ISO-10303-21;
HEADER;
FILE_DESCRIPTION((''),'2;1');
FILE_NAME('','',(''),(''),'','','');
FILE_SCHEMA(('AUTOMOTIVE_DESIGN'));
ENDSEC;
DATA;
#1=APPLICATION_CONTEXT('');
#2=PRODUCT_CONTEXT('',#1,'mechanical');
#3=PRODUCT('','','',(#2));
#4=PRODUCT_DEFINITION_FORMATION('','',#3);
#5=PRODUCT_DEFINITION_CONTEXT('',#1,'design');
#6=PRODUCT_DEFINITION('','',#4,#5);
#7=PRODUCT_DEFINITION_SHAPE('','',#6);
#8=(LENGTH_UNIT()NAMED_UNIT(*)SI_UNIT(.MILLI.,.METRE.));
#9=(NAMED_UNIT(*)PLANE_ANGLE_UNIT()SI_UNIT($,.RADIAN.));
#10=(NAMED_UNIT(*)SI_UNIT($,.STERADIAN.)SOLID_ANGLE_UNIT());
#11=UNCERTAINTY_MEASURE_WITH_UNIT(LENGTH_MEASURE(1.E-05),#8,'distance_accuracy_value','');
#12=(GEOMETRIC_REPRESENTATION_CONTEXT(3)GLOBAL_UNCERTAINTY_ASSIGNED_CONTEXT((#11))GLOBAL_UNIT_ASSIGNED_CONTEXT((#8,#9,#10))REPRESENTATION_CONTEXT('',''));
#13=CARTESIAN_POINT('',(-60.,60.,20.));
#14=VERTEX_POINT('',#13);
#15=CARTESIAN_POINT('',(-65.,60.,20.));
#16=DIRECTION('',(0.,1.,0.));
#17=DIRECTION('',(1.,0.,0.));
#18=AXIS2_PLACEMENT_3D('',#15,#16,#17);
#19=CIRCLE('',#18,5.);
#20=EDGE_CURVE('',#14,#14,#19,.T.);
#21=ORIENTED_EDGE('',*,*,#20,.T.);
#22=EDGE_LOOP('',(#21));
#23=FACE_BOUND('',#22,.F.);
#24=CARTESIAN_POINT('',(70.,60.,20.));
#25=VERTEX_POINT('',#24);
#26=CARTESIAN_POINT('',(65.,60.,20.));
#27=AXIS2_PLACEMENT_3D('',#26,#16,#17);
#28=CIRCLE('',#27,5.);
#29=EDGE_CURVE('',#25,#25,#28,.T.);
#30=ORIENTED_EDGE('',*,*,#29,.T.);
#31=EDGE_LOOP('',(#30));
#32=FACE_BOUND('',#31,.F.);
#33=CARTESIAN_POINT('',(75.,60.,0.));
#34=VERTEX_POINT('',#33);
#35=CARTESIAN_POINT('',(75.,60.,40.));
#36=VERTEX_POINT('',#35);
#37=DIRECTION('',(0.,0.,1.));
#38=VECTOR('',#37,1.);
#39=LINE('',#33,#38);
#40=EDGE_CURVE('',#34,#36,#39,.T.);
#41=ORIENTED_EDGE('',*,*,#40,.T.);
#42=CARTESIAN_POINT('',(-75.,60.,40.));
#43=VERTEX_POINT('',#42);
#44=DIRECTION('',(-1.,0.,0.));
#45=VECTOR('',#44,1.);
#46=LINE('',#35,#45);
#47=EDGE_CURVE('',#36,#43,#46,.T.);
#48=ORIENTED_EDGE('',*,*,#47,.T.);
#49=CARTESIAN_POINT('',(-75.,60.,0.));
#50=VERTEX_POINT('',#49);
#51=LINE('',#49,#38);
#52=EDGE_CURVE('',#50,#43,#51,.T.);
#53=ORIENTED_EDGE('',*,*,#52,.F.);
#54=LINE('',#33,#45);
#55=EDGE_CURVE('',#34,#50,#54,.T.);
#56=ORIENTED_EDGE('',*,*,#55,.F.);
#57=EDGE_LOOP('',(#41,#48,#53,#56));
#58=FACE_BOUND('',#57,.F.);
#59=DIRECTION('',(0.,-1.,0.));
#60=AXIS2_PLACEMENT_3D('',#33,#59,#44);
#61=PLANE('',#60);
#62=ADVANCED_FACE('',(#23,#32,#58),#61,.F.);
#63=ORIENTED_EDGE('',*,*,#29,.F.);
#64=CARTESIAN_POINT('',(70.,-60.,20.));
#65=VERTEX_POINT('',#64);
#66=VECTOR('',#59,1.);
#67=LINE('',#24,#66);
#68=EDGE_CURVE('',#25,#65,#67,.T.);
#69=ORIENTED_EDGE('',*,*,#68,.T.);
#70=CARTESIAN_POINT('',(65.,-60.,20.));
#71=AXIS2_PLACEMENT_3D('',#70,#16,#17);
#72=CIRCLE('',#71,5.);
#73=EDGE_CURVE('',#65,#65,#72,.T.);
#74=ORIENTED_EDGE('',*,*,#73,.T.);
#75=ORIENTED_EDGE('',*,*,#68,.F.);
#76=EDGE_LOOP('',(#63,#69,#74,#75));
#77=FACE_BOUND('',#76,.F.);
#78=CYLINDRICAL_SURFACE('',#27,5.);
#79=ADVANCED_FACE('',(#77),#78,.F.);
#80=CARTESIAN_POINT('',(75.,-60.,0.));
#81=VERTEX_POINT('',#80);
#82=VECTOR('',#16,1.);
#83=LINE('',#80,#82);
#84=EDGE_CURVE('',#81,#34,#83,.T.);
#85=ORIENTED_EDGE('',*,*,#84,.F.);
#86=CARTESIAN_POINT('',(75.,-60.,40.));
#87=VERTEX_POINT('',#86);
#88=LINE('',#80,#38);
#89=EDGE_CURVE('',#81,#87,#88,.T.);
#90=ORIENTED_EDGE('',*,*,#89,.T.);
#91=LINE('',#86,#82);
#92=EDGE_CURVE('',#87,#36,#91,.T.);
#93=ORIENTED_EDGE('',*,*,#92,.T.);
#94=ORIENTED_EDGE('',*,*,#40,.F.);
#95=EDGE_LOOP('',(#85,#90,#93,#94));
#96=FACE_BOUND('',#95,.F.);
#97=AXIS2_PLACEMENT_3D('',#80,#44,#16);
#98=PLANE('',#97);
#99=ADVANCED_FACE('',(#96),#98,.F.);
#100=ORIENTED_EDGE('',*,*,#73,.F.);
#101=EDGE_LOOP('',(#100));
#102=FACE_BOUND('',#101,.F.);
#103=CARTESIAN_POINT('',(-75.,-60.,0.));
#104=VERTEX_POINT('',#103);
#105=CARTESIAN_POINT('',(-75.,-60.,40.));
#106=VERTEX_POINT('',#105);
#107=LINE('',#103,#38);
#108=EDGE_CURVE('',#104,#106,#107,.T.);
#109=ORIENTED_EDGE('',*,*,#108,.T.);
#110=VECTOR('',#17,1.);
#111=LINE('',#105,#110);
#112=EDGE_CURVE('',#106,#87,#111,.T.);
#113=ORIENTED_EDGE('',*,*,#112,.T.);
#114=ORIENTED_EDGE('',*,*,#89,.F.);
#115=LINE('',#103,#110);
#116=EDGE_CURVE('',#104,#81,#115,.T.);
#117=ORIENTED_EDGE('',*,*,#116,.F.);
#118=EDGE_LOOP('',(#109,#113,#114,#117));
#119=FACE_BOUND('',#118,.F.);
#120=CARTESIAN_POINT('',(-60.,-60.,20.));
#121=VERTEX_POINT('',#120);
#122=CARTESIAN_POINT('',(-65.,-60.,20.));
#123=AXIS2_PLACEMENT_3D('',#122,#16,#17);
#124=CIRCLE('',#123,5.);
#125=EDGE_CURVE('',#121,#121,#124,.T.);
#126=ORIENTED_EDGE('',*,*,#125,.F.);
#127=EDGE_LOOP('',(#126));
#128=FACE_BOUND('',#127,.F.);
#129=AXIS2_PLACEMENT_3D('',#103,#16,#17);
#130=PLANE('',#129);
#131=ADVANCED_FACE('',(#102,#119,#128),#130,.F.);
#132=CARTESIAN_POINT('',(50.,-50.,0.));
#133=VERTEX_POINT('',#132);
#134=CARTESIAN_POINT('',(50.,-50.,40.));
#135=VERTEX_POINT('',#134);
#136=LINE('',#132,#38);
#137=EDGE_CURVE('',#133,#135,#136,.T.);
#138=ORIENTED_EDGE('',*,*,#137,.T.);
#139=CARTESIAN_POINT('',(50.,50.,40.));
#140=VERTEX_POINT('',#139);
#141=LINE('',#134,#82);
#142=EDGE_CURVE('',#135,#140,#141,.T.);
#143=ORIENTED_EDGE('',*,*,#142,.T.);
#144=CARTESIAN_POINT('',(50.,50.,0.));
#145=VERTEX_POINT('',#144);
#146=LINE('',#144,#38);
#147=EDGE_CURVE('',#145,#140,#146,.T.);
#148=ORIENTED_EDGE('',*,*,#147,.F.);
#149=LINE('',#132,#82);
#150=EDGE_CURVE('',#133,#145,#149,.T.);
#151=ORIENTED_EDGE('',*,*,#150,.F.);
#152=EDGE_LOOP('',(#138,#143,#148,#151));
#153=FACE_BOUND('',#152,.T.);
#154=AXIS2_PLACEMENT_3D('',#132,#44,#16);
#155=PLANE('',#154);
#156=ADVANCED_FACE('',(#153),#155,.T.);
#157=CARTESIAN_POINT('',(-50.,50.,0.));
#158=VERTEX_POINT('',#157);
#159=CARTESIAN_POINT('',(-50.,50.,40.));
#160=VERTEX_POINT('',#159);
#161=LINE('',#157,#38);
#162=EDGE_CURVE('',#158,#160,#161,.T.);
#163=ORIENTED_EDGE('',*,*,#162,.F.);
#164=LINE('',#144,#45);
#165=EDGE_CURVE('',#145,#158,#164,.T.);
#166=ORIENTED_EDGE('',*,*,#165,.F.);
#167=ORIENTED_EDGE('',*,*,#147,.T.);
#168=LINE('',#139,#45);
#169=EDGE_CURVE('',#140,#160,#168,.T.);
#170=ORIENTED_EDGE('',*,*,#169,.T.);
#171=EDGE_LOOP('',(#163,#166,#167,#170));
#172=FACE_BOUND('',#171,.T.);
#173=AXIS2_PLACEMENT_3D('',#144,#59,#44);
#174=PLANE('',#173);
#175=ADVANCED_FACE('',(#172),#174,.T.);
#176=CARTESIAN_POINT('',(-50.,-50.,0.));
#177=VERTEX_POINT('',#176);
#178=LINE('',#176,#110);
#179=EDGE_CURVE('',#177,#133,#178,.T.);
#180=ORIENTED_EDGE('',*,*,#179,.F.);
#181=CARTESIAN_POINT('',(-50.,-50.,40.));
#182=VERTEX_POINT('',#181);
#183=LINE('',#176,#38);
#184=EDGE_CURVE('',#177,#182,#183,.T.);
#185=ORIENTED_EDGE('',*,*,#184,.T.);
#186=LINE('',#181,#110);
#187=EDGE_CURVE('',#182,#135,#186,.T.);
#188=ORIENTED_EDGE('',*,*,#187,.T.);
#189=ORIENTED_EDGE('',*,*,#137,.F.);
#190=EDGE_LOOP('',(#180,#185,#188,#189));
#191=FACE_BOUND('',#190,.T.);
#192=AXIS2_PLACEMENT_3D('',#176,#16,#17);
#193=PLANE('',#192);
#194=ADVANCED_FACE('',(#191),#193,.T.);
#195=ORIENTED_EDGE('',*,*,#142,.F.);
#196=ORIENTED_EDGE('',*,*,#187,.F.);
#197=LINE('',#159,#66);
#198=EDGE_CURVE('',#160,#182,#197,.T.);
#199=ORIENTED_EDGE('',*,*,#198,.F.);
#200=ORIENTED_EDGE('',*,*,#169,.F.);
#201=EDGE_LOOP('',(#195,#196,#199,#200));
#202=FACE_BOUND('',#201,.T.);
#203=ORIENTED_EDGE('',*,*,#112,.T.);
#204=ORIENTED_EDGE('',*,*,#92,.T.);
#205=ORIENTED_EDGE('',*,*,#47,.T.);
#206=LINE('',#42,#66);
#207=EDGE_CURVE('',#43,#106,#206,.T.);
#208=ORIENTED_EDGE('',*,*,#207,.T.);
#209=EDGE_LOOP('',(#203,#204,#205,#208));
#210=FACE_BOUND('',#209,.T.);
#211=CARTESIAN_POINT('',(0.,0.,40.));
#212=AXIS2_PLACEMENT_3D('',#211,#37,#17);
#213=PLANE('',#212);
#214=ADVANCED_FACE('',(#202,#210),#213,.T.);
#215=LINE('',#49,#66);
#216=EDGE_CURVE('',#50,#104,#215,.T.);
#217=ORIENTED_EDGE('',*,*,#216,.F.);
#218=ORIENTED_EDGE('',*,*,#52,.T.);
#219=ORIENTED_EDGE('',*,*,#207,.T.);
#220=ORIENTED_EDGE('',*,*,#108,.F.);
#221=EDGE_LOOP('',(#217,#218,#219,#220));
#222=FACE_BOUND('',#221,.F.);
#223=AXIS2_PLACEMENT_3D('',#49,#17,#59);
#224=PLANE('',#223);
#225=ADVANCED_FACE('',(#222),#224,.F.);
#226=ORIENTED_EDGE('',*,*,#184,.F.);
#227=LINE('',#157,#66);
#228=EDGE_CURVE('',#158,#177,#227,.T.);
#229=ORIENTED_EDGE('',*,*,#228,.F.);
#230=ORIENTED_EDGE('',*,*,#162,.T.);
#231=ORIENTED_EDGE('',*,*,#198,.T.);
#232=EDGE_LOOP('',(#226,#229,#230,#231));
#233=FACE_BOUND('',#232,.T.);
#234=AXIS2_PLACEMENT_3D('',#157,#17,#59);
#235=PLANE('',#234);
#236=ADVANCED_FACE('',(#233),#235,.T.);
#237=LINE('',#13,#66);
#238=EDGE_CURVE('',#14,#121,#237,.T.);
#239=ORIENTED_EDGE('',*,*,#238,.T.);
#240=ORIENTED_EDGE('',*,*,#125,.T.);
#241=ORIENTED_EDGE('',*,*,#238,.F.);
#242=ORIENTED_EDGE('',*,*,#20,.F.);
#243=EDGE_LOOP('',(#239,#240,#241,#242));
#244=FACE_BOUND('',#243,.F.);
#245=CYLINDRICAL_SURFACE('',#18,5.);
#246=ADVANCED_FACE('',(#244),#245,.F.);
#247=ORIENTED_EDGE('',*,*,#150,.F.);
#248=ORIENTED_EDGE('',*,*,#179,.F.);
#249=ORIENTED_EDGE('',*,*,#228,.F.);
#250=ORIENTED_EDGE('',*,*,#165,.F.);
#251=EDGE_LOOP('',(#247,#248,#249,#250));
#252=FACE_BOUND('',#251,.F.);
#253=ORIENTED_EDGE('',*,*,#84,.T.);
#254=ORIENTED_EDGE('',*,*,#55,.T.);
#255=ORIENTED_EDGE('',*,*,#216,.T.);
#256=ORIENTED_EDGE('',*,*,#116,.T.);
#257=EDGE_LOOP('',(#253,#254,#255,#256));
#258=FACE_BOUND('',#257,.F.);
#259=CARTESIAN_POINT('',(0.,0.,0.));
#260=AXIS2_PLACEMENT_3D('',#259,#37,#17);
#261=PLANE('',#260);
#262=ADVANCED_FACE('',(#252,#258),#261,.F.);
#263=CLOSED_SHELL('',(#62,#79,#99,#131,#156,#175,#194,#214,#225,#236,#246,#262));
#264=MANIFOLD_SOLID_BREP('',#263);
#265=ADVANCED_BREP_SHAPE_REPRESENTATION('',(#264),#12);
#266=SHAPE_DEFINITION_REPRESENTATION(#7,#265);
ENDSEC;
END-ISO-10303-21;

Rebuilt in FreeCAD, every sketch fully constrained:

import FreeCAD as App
import Part
import Sketcher


def add_polygon(sketch, points):
    """Adds a closed chain of lines whose ends are joined by coincident constraints."""
    first, n = sketch.GeometryCount, len(points)
    for a, b in zip(points, points[1:] + points[:1]):
        sketch.addGeometry(Part.LineSegment(App.Vector(*a, 0), App.Vector(*b, 0)), False)
    for i in range(n):
        sketch.addConstraint(Sketcher.Constraint("Coincident", first + i, 2, first + (i + 1) % n, 1))

doc = App.newDocument("Part")
params = doc.addObject("Spreadsheet::Sheet", "Params")
for row, (alias, value) in enumerate([
    ("sketch1_width", "150 mm"),
    ("sketch1_width2", "100 mm"),
    ("sketch1_height", "120 mm"),
    ("pad1_length", "40 mm"),
    ("sketch2_diameter", "10 mm"),
], start=1):
    params.set(f"A{row}", alias)
    params.set(f"B{row}", "=" + value)
    params.setAlias(f"B{row}", alias)

body = doc.addObject("PartDesign::Body", "Body")

# Sketch on XY plane
sketch1 = body.newObject("Sketcher::SketchObject", "Sketch")
sketch1.AttachmentSupport = (doc.getObject("XY_Plane"), [""])
sketch1.MapMode = "FlatFace"
add_polygon(sketch1, [(-75, 60), (-75, -60), (75, -60), (75, 60)])  # lines 0-3
add_polygon(sketch1, [(50, -50), (-50, -50), (-50, 50), (50, 50)])  # lines 4-7
sketch1.addConstraint(Sketcher.Constraint("Vertical", 0))
sketch1.addConstraint(Sketcher.Constraint("Horizontal", 1))
sketch1.addConstraint(Sketcher.Constraint("Vertical", 2))
sketch1.addConstraint(Sketcher.Constraint("Horizontal", 3))
sketch1.addConstraint(Sketcher.Constraint("Horizontal", 4))
sketch1.addConstraint(Sketcher.Constraint("Vertical", 5))
sketch1.addConstraint(Sketcher.Constraint("Horizontal", 6))
sketch1.addConstraint(Sketcher.Constraint("Vertical", 7))
sketch1.addConstraint(Sketcher.Constraint("Symmetric", 0, 2, 2, 2, -1, 1))
sketch1.addConstraint(Sketcher.Constraint("Symmetric", 4, 2, 6, 2, -1, 1))
sketch1.addConstraint(Sketcher.Constraint("Equal", 6, 5))
sketch1.addConstraint(Sketcher.Constraint("DistanceX", 1, 1, 1, 2, 150.0))
sketch1.addConstraint(Sketcher.Constraint("DistanceX", 4, 2, 4, 1, 100.0))
sketch1.addConstraint(Sketcher.Constraint("DistanceY", 0, 2, 0, 1, 120.0))
sketch1.setExpression("Constraints[19]", "Params.sketch1_width")
sketch1.setExpression("Constraints[20]", "Params.sketch1_width2")
sketch1.setExpression("Constraints[21]", "Params.sketch1_height")
pad1 = body.newObject("PartDesign::Pad", "Pad")
pad1.Profile = sketch1
pad1.setExpression("Length", "Params.pad1_length")

# Sketch on XZ plane
sketch2 = body.newObject("Sketcher::SketchObject", "Sketch001")
sketch2.AttachmentSupport = (doc.getObject("XZ_Plane"), [""])
sketch2.MapMode = "FlatFace"
sketch2.AttachmentOffset = App.Placement(App.Vector(0, 0, -60), App.Rotation())
sketch2.addGeometry(Part.Circle(App.Vector(65, 20, 0), App.Vector(0, 0, 1), 5), False)
sketch2.addGeometry(Part.Circle(App.Vector(-65, 20, 0), App.Vector(0, 0, 1), 5), False)
sketch2.addConstraint(Sketcher.Constraint("Equal", 0, 1))
sketch2.addConstraint(Sketcher.Constraint("Symmetric", 0, 3, 1, 3, -2))
sketch2.addConstraint(Sketcher.Constraint("Diameter", 0, 10.0))
sketch2.addConstraint(Sketcher.Constraint("DistanceY", -1, 1, 0, 3, 20.0))
sketch2.addConstraint(Sketcher.Constraint("DistanceX", -1, 1, 0, 3, 65.0))
sketch2.setExpression("Constraints[2]", "Params.sketch2_diameter")
pocket1 = body.newObject("PartDesign::Pocket", "Pocket")
pocket1.Profile = sketch2
pocket1.Type = "ThroughAll"
pocket1.Reversed = True

doc.recompute()
